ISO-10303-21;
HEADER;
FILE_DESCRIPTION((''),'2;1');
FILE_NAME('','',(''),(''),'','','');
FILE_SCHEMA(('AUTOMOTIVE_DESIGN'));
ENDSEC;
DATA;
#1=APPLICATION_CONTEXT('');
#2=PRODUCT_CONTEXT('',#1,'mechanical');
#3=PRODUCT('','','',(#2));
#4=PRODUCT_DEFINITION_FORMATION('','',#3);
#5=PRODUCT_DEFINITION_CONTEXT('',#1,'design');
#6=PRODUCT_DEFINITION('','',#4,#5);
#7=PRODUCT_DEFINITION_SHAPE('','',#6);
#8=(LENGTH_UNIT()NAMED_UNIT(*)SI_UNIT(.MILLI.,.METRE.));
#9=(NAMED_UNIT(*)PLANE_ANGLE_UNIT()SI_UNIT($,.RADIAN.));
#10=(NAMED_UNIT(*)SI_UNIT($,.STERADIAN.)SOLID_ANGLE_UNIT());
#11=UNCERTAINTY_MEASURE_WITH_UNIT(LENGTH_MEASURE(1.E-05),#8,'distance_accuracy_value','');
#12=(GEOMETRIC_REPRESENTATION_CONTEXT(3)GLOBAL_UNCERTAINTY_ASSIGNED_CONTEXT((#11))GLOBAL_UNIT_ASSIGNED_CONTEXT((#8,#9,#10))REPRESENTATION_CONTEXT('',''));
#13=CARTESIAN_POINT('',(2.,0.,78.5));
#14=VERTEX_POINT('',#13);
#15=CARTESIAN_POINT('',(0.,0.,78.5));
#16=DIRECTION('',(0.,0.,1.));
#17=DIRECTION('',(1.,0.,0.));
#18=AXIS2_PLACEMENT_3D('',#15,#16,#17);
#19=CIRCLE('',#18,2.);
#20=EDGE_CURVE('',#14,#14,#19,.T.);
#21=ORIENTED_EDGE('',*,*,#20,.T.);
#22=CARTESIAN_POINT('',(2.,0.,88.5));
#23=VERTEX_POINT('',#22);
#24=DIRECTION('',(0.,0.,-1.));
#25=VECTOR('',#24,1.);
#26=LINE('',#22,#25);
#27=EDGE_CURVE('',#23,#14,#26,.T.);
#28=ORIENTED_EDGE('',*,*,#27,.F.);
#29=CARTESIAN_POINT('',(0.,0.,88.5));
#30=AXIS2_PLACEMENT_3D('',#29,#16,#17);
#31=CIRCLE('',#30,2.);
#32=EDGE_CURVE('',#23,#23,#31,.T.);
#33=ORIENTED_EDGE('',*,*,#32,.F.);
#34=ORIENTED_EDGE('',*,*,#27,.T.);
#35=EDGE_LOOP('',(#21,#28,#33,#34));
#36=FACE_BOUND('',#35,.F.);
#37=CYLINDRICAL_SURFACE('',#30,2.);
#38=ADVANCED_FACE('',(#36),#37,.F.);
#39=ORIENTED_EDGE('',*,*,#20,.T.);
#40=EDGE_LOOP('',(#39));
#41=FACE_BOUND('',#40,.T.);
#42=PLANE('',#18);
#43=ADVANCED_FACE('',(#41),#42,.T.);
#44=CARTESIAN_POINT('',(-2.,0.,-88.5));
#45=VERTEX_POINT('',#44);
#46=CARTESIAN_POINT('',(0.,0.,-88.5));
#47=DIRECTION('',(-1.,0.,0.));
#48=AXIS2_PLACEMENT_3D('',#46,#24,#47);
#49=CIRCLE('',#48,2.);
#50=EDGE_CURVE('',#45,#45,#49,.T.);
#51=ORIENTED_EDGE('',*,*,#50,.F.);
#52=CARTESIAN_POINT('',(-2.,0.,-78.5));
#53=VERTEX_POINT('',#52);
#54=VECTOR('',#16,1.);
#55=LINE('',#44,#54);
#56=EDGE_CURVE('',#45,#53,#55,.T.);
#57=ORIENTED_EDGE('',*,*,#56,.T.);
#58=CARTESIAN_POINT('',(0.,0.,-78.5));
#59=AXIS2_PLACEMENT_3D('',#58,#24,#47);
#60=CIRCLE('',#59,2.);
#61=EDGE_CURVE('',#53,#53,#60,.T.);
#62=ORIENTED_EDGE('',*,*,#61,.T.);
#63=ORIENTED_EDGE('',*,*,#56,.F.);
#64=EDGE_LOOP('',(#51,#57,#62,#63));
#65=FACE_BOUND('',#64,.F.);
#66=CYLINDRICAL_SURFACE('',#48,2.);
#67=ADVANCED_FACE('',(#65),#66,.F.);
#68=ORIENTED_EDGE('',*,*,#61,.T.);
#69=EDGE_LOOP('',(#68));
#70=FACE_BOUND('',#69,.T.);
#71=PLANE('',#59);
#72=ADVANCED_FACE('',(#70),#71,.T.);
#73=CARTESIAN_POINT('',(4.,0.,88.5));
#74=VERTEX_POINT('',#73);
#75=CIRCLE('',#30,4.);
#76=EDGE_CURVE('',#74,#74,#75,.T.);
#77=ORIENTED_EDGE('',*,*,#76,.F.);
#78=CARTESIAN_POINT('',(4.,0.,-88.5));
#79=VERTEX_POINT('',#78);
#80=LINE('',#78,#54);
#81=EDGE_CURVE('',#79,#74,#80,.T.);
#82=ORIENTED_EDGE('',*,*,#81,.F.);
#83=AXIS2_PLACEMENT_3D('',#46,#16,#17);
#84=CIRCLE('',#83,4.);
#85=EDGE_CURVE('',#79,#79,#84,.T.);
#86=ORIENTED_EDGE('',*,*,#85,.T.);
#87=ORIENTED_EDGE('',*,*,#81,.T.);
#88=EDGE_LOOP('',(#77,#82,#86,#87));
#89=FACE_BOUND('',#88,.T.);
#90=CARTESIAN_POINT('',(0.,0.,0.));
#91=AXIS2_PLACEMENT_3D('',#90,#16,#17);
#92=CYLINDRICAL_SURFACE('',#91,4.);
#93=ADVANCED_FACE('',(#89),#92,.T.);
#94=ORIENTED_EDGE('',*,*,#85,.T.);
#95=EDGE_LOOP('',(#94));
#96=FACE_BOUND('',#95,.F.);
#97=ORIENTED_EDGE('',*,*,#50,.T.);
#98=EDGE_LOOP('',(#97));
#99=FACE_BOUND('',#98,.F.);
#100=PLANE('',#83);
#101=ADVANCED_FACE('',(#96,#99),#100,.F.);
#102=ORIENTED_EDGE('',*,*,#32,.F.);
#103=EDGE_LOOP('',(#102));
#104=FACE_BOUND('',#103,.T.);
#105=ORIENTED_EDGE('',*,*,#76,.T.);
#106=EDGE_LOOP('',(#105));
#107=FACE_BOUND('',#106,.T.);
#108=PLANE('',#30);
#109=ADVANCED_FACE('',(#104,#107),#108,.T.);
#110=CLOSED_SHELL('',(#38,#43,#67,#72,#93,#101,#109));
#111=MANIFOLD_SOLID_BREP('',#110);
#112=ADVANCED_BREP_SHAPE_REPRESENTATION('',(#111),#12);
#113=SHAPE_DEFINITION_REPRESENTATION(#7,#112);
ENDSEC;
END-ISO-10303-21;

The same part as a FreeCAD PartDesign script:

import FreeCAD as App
import Part
import Sketcher

doc = App.newDocument("Part")
body = doc.addObject("PartDesign::Body", "Body")

sketch1 = doc.addObject("Sketcher::SketchObject", "Sketch")
body.addObject(sketch1)
sketch1.AttachmentSupport = (doc.XY_Plane, [""])
sketch1.MapMode = "FlatFace"
sketch1.addGeometry(Part.Circle(App.Vector(0, 0, 0), App.Vector(0, 0, 1), 4), False)
sketch1.addConstraint([
    Sketcher.Constraint("Coincident", 0, 3, -1, 1),
    Sketcher.Constraint("Diameter", 0, 8.0),
])
pad1 = doc.addObject("PartDesign::Pad", "Pad")
body.addObject(pad1)
pad1.Profile = sketch1
pad1.Length = 177
pad1.Midplane = True

sketch2 = doc.addObject("Sketcher::SketchObject", "Sketch001")
body.addObject(sketch2)
sketch2.AttachmentSupport = (doc.XY_Plane, [""])
sketch2.MapMode = "FlatFace"
sketch2.AttachmentOffset = App.Placement(App.Vector(0, 0, 88.5), App.Rotation())
sketch2.addGeometry(Part.Circle(App.Vector(0, 0, 0), App.Vector(0, 0, 1), 2), False)
sketch2.addConstraint([
    Sketcher.Constraint("Coincident", 0, 3, -1, 1),
    Sketcher.Constraint("Diameter", 0, 4.0),
])
pocket1 = doc.addObject("PartDesign::Pocket", "Pocket")
body.addObject(pocket1)
pocket1.Profile = sketch2
pocket1.Length = 10

sketch3 = doc.addObject("Sketcher::SketchObject", "Sketch002")
body.addObject(sketch3)
sketch3.AttachmentSupport = (doc.XY_Plane, [""])
sketch3.MapMode = "FlatFace"
sketch3.AttachmentOffset = App.Placement(App.Vector(0, 0, -88.5), App.Rotation())
sketch3.addGeometry(Part.Circle(App.Vector(0, 0, 0), App.Vector(0, 0, 1), 2), False)
sketch3.addConstraint([
    Sketcher.Constraint("Coincident", 0, 3, -1, 1),
    Sketcher.Constraint("Diameter", 0, 4.0),
])
pocket2 = doc.addObject("PartDesign::Pocket", "Pocket001")
body.addObject(pocket2)
pocket2.Profile = sketch3
pocket2.Length = 10
pocket2.Reversed = True

doc.recompute()
